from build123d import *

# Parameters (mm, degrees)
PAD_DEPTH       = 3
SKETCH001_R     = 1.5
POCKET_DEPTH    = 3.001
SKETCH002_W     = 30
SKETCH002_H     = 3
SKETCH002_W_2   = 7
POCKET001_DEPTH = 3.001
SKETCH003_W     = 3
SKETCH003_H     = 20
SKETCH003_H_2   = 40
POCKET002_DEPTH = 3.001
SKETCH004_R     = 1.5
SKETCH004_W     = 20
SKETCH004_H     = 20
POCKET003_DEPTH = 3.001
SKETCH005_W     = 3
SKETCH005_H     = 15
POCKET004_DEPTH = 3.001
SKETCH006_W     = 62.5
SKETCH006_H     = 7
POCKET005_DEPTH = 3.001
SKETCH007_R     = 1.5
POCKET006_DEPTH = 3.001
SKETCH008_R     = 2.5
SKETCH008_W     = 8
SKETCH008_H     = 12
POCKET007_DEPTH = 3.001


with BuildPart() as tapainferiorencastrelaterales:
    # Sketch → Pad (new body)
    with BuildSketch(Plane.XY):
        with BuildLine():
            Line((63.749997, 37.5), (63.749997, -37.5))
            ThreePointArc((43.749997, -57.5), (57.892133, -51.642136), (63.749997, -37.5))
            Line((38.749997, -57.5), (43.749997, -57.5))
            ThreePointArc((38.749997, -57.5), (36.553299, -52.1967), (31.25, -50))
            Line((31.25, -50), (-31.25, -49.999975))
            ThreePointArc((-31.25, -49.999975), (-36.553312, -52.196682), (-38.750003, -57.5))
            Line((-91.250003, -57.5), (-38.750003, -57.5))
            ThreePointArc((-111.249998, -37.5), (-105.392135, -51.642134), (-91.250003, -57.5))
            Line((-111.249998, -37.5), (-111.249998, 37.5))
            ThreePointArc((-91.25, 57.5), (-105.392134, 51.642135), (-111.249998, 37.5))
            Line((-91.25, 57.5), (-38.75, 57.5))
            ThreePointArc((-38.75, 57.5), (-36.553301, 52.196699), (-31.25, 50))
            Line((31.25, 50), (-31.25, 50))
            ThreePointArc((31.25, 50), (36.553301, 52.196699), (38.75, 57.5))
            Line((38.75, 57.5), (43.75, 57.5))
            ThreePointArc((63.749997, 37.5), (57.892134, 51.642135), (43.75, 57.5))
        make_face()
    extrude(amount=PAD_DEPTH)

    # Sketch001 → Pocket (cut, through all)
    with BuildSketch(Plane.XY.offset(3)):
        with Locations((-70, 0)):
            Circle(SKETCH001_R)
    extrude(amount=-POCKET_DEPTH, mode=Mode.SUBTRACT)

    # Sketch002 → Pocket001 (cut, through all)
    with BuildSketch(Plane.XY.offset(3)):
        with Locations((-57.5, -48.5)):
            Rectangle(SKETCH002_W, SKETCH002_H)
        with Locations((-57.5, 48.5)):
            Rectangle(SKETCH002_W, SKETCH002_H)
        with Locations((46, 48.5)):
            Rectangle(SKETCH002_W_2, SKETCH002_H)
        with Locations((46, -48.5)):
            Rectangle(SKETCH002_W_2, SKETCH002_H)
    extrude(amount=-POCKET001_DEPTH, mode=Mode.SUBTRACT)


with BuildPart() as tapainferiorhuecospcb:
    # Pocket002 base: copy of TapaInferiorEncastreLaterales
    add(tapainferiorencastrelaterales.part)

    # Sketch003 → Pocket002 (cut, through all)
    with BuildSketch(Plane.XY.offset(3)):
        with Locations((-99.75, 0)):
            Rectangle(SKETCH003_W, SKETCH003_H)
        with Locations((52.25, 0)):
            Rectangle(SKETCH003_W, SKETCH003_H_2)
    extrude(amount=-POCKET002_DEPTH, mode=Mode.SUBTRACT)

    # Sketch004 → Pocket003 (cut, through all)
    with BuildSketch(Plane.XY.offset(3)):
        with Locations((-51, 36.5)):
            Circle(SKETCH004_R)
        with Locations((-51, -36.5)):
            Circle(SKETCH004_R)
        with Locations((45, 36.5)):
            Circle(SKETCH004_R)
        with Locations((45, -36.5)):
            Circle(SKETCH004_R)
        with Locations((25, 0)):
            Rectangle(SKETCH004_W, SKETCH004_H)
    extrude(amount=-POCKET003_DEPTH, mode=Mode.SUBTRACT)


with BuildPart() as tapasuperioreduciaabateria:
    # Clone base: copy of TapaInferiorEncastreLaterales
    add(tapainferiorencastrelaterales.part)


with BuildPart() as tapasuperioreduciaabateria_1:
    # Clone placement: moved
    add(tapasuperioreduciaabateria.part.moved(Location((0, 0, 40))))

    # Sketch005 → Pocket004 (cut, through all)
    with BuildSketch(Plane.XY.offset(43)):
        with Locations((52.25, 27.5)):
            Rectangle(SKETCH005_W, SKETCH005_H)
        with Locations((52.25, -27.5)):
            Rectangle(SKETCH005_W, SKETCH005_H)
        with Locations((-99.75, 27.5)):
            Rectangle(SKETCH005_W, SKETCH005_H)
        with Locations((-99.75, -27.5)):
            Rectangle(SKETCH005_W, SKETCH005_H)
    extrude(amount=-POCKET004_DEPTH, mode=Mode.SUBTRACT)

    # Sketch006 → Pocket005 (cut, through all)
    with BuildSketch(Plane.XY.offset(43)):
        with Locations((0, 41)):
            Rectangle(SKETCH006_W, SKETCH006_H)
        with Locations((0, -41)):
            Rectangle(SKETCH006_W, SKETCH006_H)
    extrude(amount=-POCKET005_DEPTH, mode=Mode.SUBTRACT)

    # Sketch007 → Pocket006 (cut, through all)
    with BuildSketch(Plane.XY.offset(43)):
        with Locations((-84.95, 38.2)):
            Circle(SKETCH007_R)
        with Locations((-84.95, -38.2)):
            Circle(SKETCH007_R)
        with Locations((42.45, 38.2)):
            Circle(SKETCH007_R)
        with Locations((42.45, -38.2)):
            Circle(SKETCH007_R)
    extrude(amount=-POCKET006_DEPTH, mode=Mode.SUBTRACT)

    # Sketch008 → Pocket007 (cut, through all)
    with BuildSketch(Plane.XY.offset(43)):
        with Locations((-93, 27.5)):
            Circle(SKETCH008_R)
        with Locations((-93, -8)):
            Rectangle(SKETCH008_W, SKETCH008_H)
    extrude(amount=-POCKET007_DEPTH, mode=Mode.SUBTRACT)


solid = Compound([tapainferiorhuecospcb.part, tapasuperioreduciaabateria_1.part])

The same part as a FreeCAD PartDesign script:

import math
import FreeCAD as App
import Part
import Sketcher

V = App.Vector
Q = App.Units.Quantity

doc = App.newDocument("Part")
body = doc.addObject("PartDesign::Body", "Body")

# Sketch on XY plane
sketch1 = doc.addObject("Sketcher::SketchObject", "Sketch")
body.addObject(sketch1)
sketch1.AttachmentSupport = (doc.XY_Plane, [""])
sketch1.MapMode = "FlatFace"
sketch1.addGeometry(Part.LineSegment(V(63.749997, -37.5, 0), V(63.749997, 37.5, 0)), False)
sketch1.addGeometry(Part.ArcOfCircle(Part.Circle(V(43.749998, 37.500001, 0), V(0, 0, 1), 19.999999), math.radians(-0.000004), math.radians(89.999995)), False)
sketch1.addGeometry(Part.LineSegment(V(43.75, 57.5, 0), V(38.75, 57.5, 0)), False)
sketch1.addGeometry(Part.ArcOfCircle(Part.Circle(V(31.25, 57.5, 0), V(0, 0, 1), 7.5), math.radians(-90.000004), math.radians(0.000004)), False)
sketch1.addGeometry(Part.LineSegment(V(31.25, 50, 0), V(-31.25, 50, 0)), False)
sketch1.addGeometry(Part.ArcOfCircle(Part.Circle(V(-31.25, 57.5, 0), V(0, 0, 1), 7.5), math.radians(179.999996), math.radians(270.000004)), False)
sketch1.addGeometry(Part.LineSegment(V(-38.75, 57.5, 0), V(-91.25, 57.5, 0)), False)
sketch1.addGeometry(Part.ArcOfCircle(Part.Circle(V(-91.249998, 37.5, 0), V(0, 0, 1), 20), math.radians(90.000007), math.radians(179.999999)), False)
sketch1.addGeometry(Part.LineSegment(V(-111.249998, 37.5, 0), V(-111.249998, -37.5, 0)), False)
sketch1.addGeometry(Part.ArcOfCircle(Part.Circle(V(-91.249998, -37.5, 0), V(0, 0, 1), 20), math.radians(-179.999999), math.radians(-90.000016)), False)
sketch1.addGeometry(Part.LineSegment(V(-91.250003, -57.5, 0), V(-38.750003, -57.5, 0)), False)
sketch1.addGeometry(Part.ArcOfCircle(Part.Circle(V(-31.250003, -57.499975, 0), V(0, 0, 1), 7.5), math.radians(89.999973), math.radians(180.000195)), False)
sketch1.addGeometry(Part.LineSegment(V(-31.25, -49.999975, 0), V(31.25, -50, 0)), False)
sketch1.addGeometry(Part.ArcOfCircle(Part.Circle(V(31.249997, -57.5, 0), V(0, 0, 1), 7.5), math.radians(-0.000004), math.radians(89.999981)), False)
sketch1.addGeometry(Part.LineSegment(V(38.749997, -57.5, 0), V(43.749997, -57.5, 0)), False)
sketch1.addGeometry(Part.ArcOfCircle(Part.Circle(V(43.749998, -37.500001, 0), V(0, 0, 1), 19.999999), math.radians(-90.000004), math.radians(0.000004)), False)
sketch1.addConstraint(Sketcher.Constraint("Coincident", 0, 2, 1, 1))
sketch1.addConstraint(Sketcher.Constraint("Coincident", 1, 2, 2, 1))
sketch1.addConstraint(Sketcher.Constraint("Coincident", 2, 2, 3, 2))
sketch1.addConstraint(Sketcher.Constraint("Coincident", 3, 1, 4, 1))
sketch1.addConstraint(Sketcher.Constraint("Coincident", 4, 2, 5, 2))
sketch1.addConstraint(Sketcher.Constraint("Coincident", 5, 1, 6, 1))
sketch1.addConstraint(Sketcher.Constraint("Coincident", 6, 2, 7, 1))
sketch1.addConstraint(Sketcher.Constraint("Coincident", 7, 2, 8, 1))
sketch1.addConstraint(Sketcher.Constraint("Coincident", 8, 2, 9, 1))
sketch1.addConstraint(Sketcher.Constraint("Coincident", 9, 2, 10, 1))
sketch1.addConstraint(Sketcher.Constraint("Coincident", 10, 2, 11, 2))
sketch1.addConstraint(Sketcher.Constraint("Coincident", 11, 1, 12, 1))
sketch1.addConstraint(Sketcher.Constraint("Coincident", 12, 2, 13, 2))
sketch1.addConstraint(Sketcher.Constraint("Coincident", 13, 1, 14, 1))
sketch1.addConstraint(Sketcher.Constraint("Coincident", 14, 2, 15, 1))
sketch1.addConstraint(Sketcher.Constraint("Coincident", 15, 2, 0, 1))
sketch1.addConstraint(Sketcher.Constraint("Vertical", 0))
sketch1.addConstraint(Sketcher.Constraint("Horizontal", 2))
sketch1.addConstraint(Sketcher.Constraint("Horizontal", 4))
sketch1.addConstraint(Sketcher.Constraint("Horizontal", 6))
sketch1.addConstraint(Sketcher.Constraint("Vertical", 8))
sketch1.addConstraint(Sketcher.Constraint("Horizontal", 10))
sketch1.addConstraint(Sketcher.Constraint("Horizontal", 14))
sketch1.addConstraint(Sketcher.Constraint("Radius", 1, Q("19.999999 mm")))
sketch1.addConstraint(Sketcher.Constraint("Radius", 7, Q("20 mm")))
sketch1.addConstraint(Sketcher.Constraint("Radius", 9, Q("20 mm")))
sketch1.addConstraint(Sketcher.Constraint("Radius", 15, Q("19.999999 mm")))
sketch1.addConstraint(Sketcher.Constraint("Radius", 3, Q("7.5 mm")))
sketch1.addConstraint(Sketcher.Constraint("Radius", 5, Q("7.5 mm")))
sketch1.addConstraint(Sketcher.Constraint("Radius", 11, Q("7.5 mm")))
sketch1.addConstraint(Sketcher.Constraint("Radius", 13, Q("7.5 mm")))
sketch1.addConstraint(Sketcher.Constraint("DistanceX", 2, 2, 2, 1, Q("5 mm")))
sketch1.addConstraint(Sketcher.Constraint("DistanceX", 14, 1, 14, 2, Q("5 mm")))
sketch1.addConstraint(Sketcher.Constraint("DistanceY", 0, 1, 0, 2, Q("75 mm")))
sketch1.addConstraint(Sketcher.Constraint("DistanceY", 8, 2, 8, 1, Q("75 mm")))
sketch1.addConstraint(Sketcher.Constraint("DistanceX", 4, 2, 4, 1, Q("62.5 mm")))
sketch1.addConstraint(Sketcher.Constraint("DistanceX", 6, 2, 6, 1, Q("52.5 mm")))
sketch1.addConstraint(Sketcher.Constraint("DistanceX", 10, 1, 10, 2, Q("52.5 mm")))
sketch1.addConstraint(Sketcher.Constraint("DistanceY", -1, 1, 3, 1, Q("50 mm")))
sketch1.addConstraint(Sketcher.Constraint("DistanceY", 12, 2, -1, 1, Q("50 mm")))
sketch1.addConstraint(Sketcher.Constraint("DistanceY", 1, 3, 3, 3, Q("19.999998 mm")))
sketch1.addConstraint(Sketcher.Constraint("DistanceX", 5, 3, 1, 3, Q("74.999999 mm")))
sketch1.addConstraint(Sketcher.Constraint("DistanceY", 7, 3, 5, 3, Q("20 mm")))
sketch1.addConstraint(Sketcher.Constraint("DistanceY", 9, 3, 7, 3, Q("74.999999 mm")))
sketch1.addConstraint(Sketcher.Constraint("DistanceX", 11, 3, 1, 3, Q("75.000002 mm")))
sketch1.addConstraint(Sketcher.Constraint("DistanceY", 13, 3, 15, 3, Q("19.999998 mm")))
sketch1.addConstraint(Sketcher.Constraint("DistanceY", 0, 2, 3, 3, Q("20 mm")))
sketch1.addConstraint(Sketcher.Constraint("DistanceX", 5, 3, 1, 2, Q("75 mm")))
sketch1.addConstraint(Sketcher.Constraint("DistanceX", 4, 2, 2, 2, Q("70 mm")))
sketch1.addConstraint(Sketcher.Constraint("DistanceX", 7, 2, 6, 2, Q("19.999998 mm")))
sketch1.addConstraint(Sketcher.Constraint("DistanceY", 7, 2, 6, 2, Q("20 mm")))
sketch1.addConstraint(Sketcher.Constraint("DistanceX", 10, 2, 13, 3, Q("70 mm")))
sketch1.addConstraint(Sketcher.Constraint("Distance", 12, Q("62.5 mm")))
sketch1.addConstraint(Sketcher.Constraint("DistanceX", 12, 2, 15, 3, Q("12.499998 mm")))
sketch1.addConstraint(Sketcher.Constraint("DistanceX", -1, 1, 1, 3, Q("43.749998 mm")))
sketch1.addConstraint(Sketcher.Constraint("DistanceY", 11, 3, -1, 1, Q("57.499975 mm")))
pad1 = doc.addObject("PartDesign::Pad", "Pad")
body.addObject(pad1)
pad1.Profile = sketch1
pad1.Length = 3

# Sketch on XY plane
sketch2 = doc.addObject("Sketcher::SketchObject", "Sketch001")
body.addObject(sketch2)
sketch2.AttachmentSupport = (doc.XY_Plane, [""])
sketch2.MapMode = "FlatFace"
sketch2.AttachmentOffset = App.Placement(V(0, 0, 3), App.Rotation())
sketch2.addGeometry(Part.Circle(V(-70, 0, 0), V(0, 0, 1), 1.5), False)
sketch2.addConstraint(Sketcher.Constraint("PointOnObject", 0, 3, -1))
sketch2.addConstraint(Sketcher.Constraint("Diameter", 0, Q("3 mm")))
sketch2.addConstraint(Sketcher.Constraint("DistanceX", 0, 3, -1, 1, Q("70 mm")))
pocket1 = doc.addObject("PartDesign::Pocket", "Pocket")
body.addObject(pocket1)
pocket1.Profile = sketch2
pocket1.Type = "ThroughAll"

# Sketch on XY plane
sketch3 = doc.addObject("Sketcher::SketchObject", "Sketch002")
body.addObject(sketch3)
sketch3.AttachmentSupport = (doc.XY_Plane, [""])
sketch3.MapMode = "FlatFace"
sketch3.AttachmentOffset = App.Placement(V(0, 0, 3), App.Rotation())
sketch3.addGeometry(Part.LineSegment(V(-72.5, -47, 0), V(-72.5, -50, 0)), False)
sketch3.addGeometry(Part.LineSegment(V(-72.5, -50, 0), V(-42.5, -50, 0)), False)
sketch3.addGeometry(Part.LineSegment(V(-42.5, -50, 0), V(-42.5, -47, 0)), False)
sketch3.addGeometry(Part.LineSegment(V(-42.5, -47, 0), V(-72.5, -47, 0)), False)
sketch3.addGeometry(Part.LineSegment(V(-72.5, 50, 0), V(-72.5, 47, 0)), False)
sketch3.addGeometry(Part.LineSegment(V(-72.5, 47, 0), V(-42.5, 47, 0)), False)
sketch3.addGeometry(Part.LineSegment(V(-42.5, 47, 0), V(-42.5, 50, 0)), False)
sketch3.addGeometry(Part.LineSegment(V(-42.5, 50, 0), V(-72.5, 50, 0)), False)
sketch3.addGeometry(Part.LineSegment(V(42.5, 50, 0), V(42.5, 47, 0)), False)
sketch3.addGeometry(Part.LineSegment(V(42.5, 47, 0), V(49.5, 47, 0)), False)
sketch3.addGeometry(Part.LineSegment(V(49.5, 47, 0), V(49.5, 50, 0)), False)
sketch3.addGeometry(Part.LineSegment(V(49.5, 50, 0), V(42.5, 50, 0)), False)
sketch3.addGeometry(Part.LineSegment(V(42.5, -47, 0), V(42.5, -50, 0)), False)
sketch3.addGeometry(Part.LineSegment(V(42.5, -50, 0), V(49.5, -50, 0)), False)
sketch3.addGeometry(Part.LineSegment(V(49.5, -50, 0), V(49.5, -47, 0)), False)
sketch3.addGeometry(Part.LineSegment(V(49.5, -47, 0), V(42.5, -47, 0)), False)
sketch3.addConstraint(Sketcher.Constraint("Coincident", 0, 2, 1, 1))
sketch3.addConstraint(Sketcher.Constraint("Coincident", 1, 2, 2, 1))
sketch3.addConstraint(Sketcher.Constraint("Coincident", 2, 2, 3, 1))
sketch3.addConstraint(Sketcher.Constraint("Coincident", 3, 2, 0, 1))
sketch3.addConstraint(Sketcher.Constraint("Coincident", 4, 2, 5, 1))
sketch3.addConstraint(Sketcher.Constraint("Coincident", 5, 2, 6, 1))
sketch3.addConstraint(Sketcher.Constraint("Coincident", 6, 2, 7, 1))
sketch3.addConstraint(Sketcher.Constraint("Coincident", 7, 2, 4, 1))
sketch3.addConstraint(Sketcher.Constraint("Coincident", 8, 2, 9, 1))
sketch3.addConstraint(Sketcher.Constraint("Coincident", 9, 2, 10, 1))
sketch3.addConstraint(Sketcher.Constraint("Coincident", 10, 2, 11, 1))
sketch3.addConstraint(Sketcher.Constraint("Coincident", 11, 2, 8, 1))
sketch3.addConstraint(Sketcher.Constraint("Coincident", 12, 2, 13, 1))
sketch3.addConstraint(Sketcher.Constraint("Coincident", 13, 2, 14, 1))
sketch3.addConstraint(Sketcher.Constraint("Coincident", 14, 2, 15, 1))
sketch3.addConstraint(Sketcher.Constraint("Coincident", 15, 2, 12, 1))
sketch3.addConstraint(Sketcher.Constraint("Vertical", 0))
sketch3.addConstraint(Sketcher.Constraint("Horizontal", 1))
sketch3.addConstraint(Sketcher.Constraint("Vertical", 2))
sketch3.addConstraint(Sketcher.Constraint("Horizontal", 3))
sketch3.addConstraint(Sketcher.Constraint("Vertical", 4))
sketch3.addConstraint(Sketcher.Constraint("Horizontal", 5))
sketch3.addConstraint(Sketcher.Constraint("Vertical", 6))
sketch3.addConstraint(Sketcher.Constraint("Horizontal", 7))
sketch3.addConstraint(Sketcher.Constraint("Vertical", 8))
sketch3.addConstraint(Sketcher.Constraint("Horizontal", 9))
sketch3.addConstraint(Sketcher.Constraint("Vertical", 10))
sketch3.addConstraint(Sketcher.Constraint("Horizontal", 11))
sketch3.addConstraint(Sketcher.Constraint("Vertical", 12))
sketch3.addConstraint(Sketcher.Constraint("Horizontal", 13))
sketch3.addConstraint(Sketcher.Constraint("Vertical", 14))
sketch3.addConstraint(Sketcher.Constraint("Horizontal", 15))
sketch3.addConstraint(Sketcher.Constraint("Symmetric", 2, 2, 8, 2, -1, 1))
sketch3.addConstraint(Sketcher.Constraint("Symmetric", 6, 2, 12, 2, -1, 1))
sketch3.addConstraint(Sketcher.Constraint("Symmetric", 5, 2, 8, 2, -2))
sketch3.addConstraint(Sketcher.Constraint("Symmetric", 0, 2, 7, 2, -1))
sketch3.addConstraint(Sketcher.Constraint("Symmetric", 10, 2, 13, 2, -1))
sketch3.addConstraint(Sketcher.Constraint("Horizontal", 3, 2, 14, 2))
sketch3.addConstraint(Sketcher.Constraint("DistanceX", 1, 1, 1, 2, Q("30 mm")))
sketch3.addConstraint(Sketcher.Constraint("DistanceX", 9, 1, 9, 2, Q("7 mm")))
sketch3.addConstraint(Sketcher.Constraint("DistanceY", 0, 2, 0, 1, Q("3 mm")))
sketch3.addConstraint(Sketcher.Constraint("DistanceY", 0, 2, -1, 1, Q("50 mm")))
sketch3.addConstraint(Sketcher.Constraint("DistanceX", 5, 2, 8, 2, Q("85 mm")))
pocket2 = doc.addObject("PartDesign::Pocket", "Pocket001")
body.addObject(pocket2)
pocket2.Profile = sketch3
pocket2.Type = "ThroughAll"
body2 = doc.addObject("PartDesign::Body", "Body001")
doc.recompute()

body2.BaseFeature = body
doc.recompute()

# Sketch on XY plane
sketch4 = doc.addObject("Sketcher::SketchObject", "Sketch003")
body2.addObject(sketch4)
sketch4.AttachmentSupport = (doc.getObject("XY_Plane001"), [""])
sketch4.MapMode = "FlatFace"
sketch4.AttachmentOffset = App.Placement(V(0, 0, 3), App.Rotation())
sketch4.addGeometry(Part.LineSegment(V(-101.2, 10, 0), V(-101.2, -10, 0)), False)
sketch4.addGeometry(Part.LineSegment(V(-101.2, -10, 0), V(-98.2, -10, 0)), False)
sketch4.addGeometry(Part.LineSegment(V(-98.2, -10, 0), V(-98.2, 10, 0)), False)
sketch4.addGeometry(Part.LineSegment(V(-98.2, 10, 0), V(-101.2, 10, 0)), False)
sketch4.addGeometry(Part.LineSegment(V(50.8, 20, 0), V(50.8, -20, 0)), False)
sketch4.addGeometry(Part.LineSegment(V(50.8, -20, 0), V(53.8, -20, 0)), False)
sketch4.addGeometry(Part.LineSegment(V(53.8, -20, 0), V(53.8, 20, 0)), False)
sketch4.addGeometry(Part.LineSegment(V(53.8, 20, 0), V(50.8, 20, 0)), False)
sketch4.addConstraint(Sketcher.Constraint("Coincident", 0, 2, 1, 1))
sketch4.addConstraint(Sketcher.Constraint("Coincident", 1, 2, 2, 1))
sketch4.addConstraint(Sketcher.Constraint("Coincident", 2, 2, 3, 1))
sketch4.addConstraint(Sketcher.Constraint("Coincident", 3, 2, 0, 1))
sketch4.addConstraint(Sketcher.Constraint("Coincident", 4, 2, 5, 1))
sketch4.addConstraint(Sketcher.Constraint("Coincident", 5, 2, 6, 1))
sketch4.addConstraint(Sketcher.Constraint("Coincident", 6, 2, 7, 1))
sketch4.addConstraint(Sketcher.Constraint("Coincident", 7, 2, 4, 1))
sketch4.addConstraint(Sketcher.Constraint("Vertical", 0))
sketch4.addConstraint(Sketcher.Constraint("Horizontal", 1))
sketch4.addConstraint(Sketcher.Constraint("Vertical", 2))
sketch4.addConstraint(Sketcher.Constraint("Horizontal", 3))
sketch4.addConstraint(Sketcher.Constraint("Vertical", 4))
sketch4.addConstraint(Sketcher.Constraint("Horizontal", 5))
sketch4.addConstraint(Sketcher.Constraint("Vertical", 6))
sketch4.addConstraint(Sketcher.Constraint("Horizontal", 7))
sketch4.addConstraint(Sketcher.Constraint("Equal", 3, 5))
sketch4.addConstraint(Sketcher.Constraint("DistanceX", 1, 1, 1, 2, Q("3 mm")))
sketch4.addConstraint(Sketcher.Constraint("DistanceY", 0, 2, 0, 1, Q("20 mm")))
sketch4.addConstraint(Sketcher.Constraint("DistanceY", 4, 2, 4, 1, Q("40 mm")))
sketch4.addConstraint(Sketcher.Constraint("DistanceY", 0, 2, -1, 1, Q("10 mm")))
sketch4.addConstraint(Sketcher.Constraint("DistanceY", 4, 2, -1, 1, Q("20 mm")))
sketch4.addConstraint(Sketcher.Constraint("DistanceX", 1, 2, 4, 2, Q("149 mm")))
sketch4.addConstraint(Sketcher.Constraint("DistanceX", 0, 2, -1, 1, Q("101.25 mm")))
pocket3 = doc.addObject("PartDesign::Pocket", "Pocket002")
body2.addObject(pocket3)
pocket3.Profile = sketch4
pocket3.Type = "ThroughAll"

# Sketch on XY plane
sketch5 = doc.addObject("Sketcher::SketchObject", "Sketch004")
body2.addObject(sketch5)
sketch5.AttachmentSupport = (doc.getObject("XY_Plane001"), [""])
sketch5.MapMode = "FlatFace"
sketch5.AttachmentOffset = App.Placement(V(0, 0, 3), App.Rotation())
sketch5.addGeometry(Part.Circle(V(-51, 36.5, 0), V(0, 0, 1), 1.5), False)
sketch5.addGeometry(Part.Circle(V(-51, -36.5, 0), V(0, 0, 1), 1.5), False)
sketch5.addGeometry(Part.Circle(V(45, 36.5, 0), V(0, 0, 1), 1.5), False)
sketch5.addGeometry(Part.Circle(V(45, -36.5, 0), V(0, 0, 1), 1.5), False)
sketch5.addGeometry(Part.LineSegment(V(15, 10, 0), V(15, -10, 0)), False)
sketch5.addGeometry(Part.LineSegment(V(15, -10, 0), V(35, -10, 0)), False)
sketch5.addGeometry(Part.LineSegment(V(35, -10, 0), V(35, 10, 0)), False)
sketch5.addGeometry(Part.LineSegment(V(35, 10, 0), V(15, 10, 0)), False)
sketch5.addConstraint(Sketcher.Constraint("Coincident", 4, 2, 5, 1))
sketch5.addConstraint(Sketcher.Constraint("Coincident", 5, 2, 6, 1))
sketch5.addConstraint(Sketcher.Constraint("Coincident", 6, 2, 7, 1))
sketch5.addConstraint(Sketcher.Constraint("Coincident", 7, 2, 4, 1))
sketch5.addConstraint(Sketcher.Constraint("Vertical", 4))
sketch5.addConstraint(Sketcher.Constraint("Horizontal", 5))
sketch5.addConstraint(Sketcher.Constraint("Vertical", 6))
sketch5.addConstraint(Sketcher.Constraint("Horizontal", 7))
sketch5.addConstraint(Sketcher.Constraint("Equal", 0, 1))
sketch5.addConstraint(Sketcher.Constraint("Equal", 1, 2))
sketch5.addConstraint(Sketcher.Constraint("Equal", 2, 3))
sketch5.addConstraint(Sketcher.Constraint("Symmetric", 0, 3, 1, 3, -1))
sketch5.addConstraint(Sketcher.Constraint("Symmetric", 2, 3, 3, 3, -1))
sketch5.addConstraint(Sketcher.Constraint("Horizontal", 0, 3, 2, 3))
sketch5.addConstraint(Sketcher.Constraint("Equal", 7, 4))
sketch5.addConstraint(Sketcher.Constraint("Diameter", 0, Q("3 mm")))
sketch5.addConstraint(Sketcher.Constraint("DistanceX", 5, 1, 5, 2, Q("20 mm")))
sketch5.addConstraint(Sketcher.Constraint("DistanceX", 0, 3, -1, 1, Q("51 mm")))
sketch5.addConstraint(Sketcher.Constraint("DistanceX", -1, 1, 2, 3, Q("45 mm")))
sketch5.addConstraint(Sketcher.Constraint("DistanceX", -1, 1, 4, 2, Q("15 mm")))
sketch5.addConstraint(Sketcher.Constraint("DistanceY", 4, 2, -1, 1, Q("10 mm")))
sketch5.addConstraint(Sketcher.Constraint("DistanceY", 1, 3, 0, 3, Q("73 mm")))
pocket4 = doc.addObject("PartDesign::Pocket", "Pocket003")
body2.addObject(pocket4)
pocket4.Profile = sketch5
pocket4.Type = "ThroughAll"
body3 = doc.addObject("PartDesign::Body", "Body002")
doc.recompute()

body.Placement = App.Placement(V(0, 0, 40), App.Rotation(V(0, 0, 1), 0))
boolean = doc.addObject("PartDesign::Boolean", "Boolean")
body3.addObject(boolean)
boolean.Type = "Fuse"
boolean.addObjects([body])

# Sketch on XY plane
sketch6 = doc.addObject("Sketcher::SketchObject", "Sketch005")
body3.addObject(sketch6)
sketch6.AttachmentSupport = (doc.getObject("XY_Plane002"), [""])
sketch6.MapMode = "FlatFace"
sketch6.AttachmentOffset = App.Placement(V(0, 0, 43), App.Rotation())
sketch6.addGeometry(Part.LineSegment(V(50.8, 35, 0), V(50.8, 20, 0)), False)
sketch6.addGeometry(Part.LineSegment(V(50.8, 20, 0), V(53.8, 20, 0)), False)
sketch6.addGeometry(Part.LineSegment(V(53.8, 20, 0), V(53.8, 35, 0)), False)
sketch6.addGeometry(Part.LineSegment(V(53.8, 35, 0), V(50.8, 35, 0)), False)
sketch6.addGeometry(Part.LineSegment(V(50.8, -20, 0), V(50.8, -35, 0)), False)
sketch6.addGeometry(Part.LineSegment(V(50.8, -35, 0), V(53.8, -35, 0)), False)
sketch6.addGeometry(Part.LineSegment(V(53.8, -35, 0), V(53.8, -20, 0)), False)
sketch6.addGeometry(Part.LineSegment(V(53.8, -20, 0), V(50.8, -20, 0)), False)
sketch6.addGeometry(Part.LineSegment(V(-101.2, 35, 0), V(-101.2, 20, 0)), False)
sketch6.addGeometry(Part.LineSegment(V(-101.2, 20, 0), V(-98.2, 20, 0)), False)
sketch6.addGeometry(Part.LineSegment(V(-98.2, 20, 0), V(-98.2, 35, 0)), False)
sketch6.addGeometry(Part.LineSegment(V(-98.2, 35, 0), V(-101.2, 35, 0)), False)
sketch6.addGeometry(Part.LineSegment(V(-101.2, -20, 0), V(-101.2, -35, 0)), False)
sketch6.addGeometry(Part.LineSegment(V(-101.2, -35, 0), V(-98.2, -35, 0)), False)
sketch6.addGeometry(Part.LineSegment(V(-98.2, -35, 0), V(-98.2, -20, 0)), False)
sketch6.addGeometry(Part.LineSegment(V(-98.2, -20, 0), V(-101.2, -20, 0)), False)
sketch6.addConstraint(Sketcher.Constraint("Coincident", 0, 2, 1, 1))
sketch6.addConstraint(Sketcher.Constraint("Coincident", 1, 2, 2, 1))
sketch6.addConstraint(Sketcher.Constraint("Coincident", 2, 2, 3, 1))
sketch6.addConstraint(Sketcher.Constraint("Coincident", 3, 2, 0, 1))
sketch6.addConstraint(Sketcher.Constraint("Coincident", 4, 2, 5, 1))
sketch6.addConstraint(Sketcher.Constraint("Coincident", 5, 2, 6, 1))
sketch6.addConstraint(Sketcher.Constraint("Coincident", 6, 2, 7, 1))
sketch6.addConstraint(Sketcher.Constraint("Coincident", 7, 2, 4, 1))
sketch6.addConstraint(Sketcher.Constraint("Coincident", 8, 2, 9, 1))
sketch6.addConstraint(Sketcher.Constraint("Coincident", 9, 2, 10, 1))
sketch6.addConstraint(Sketcher.Constraint("Coincident", 10, 2, 11, 1))
sketch6.addConstraint(Sketcher.Constraint("Coincident", 11, 2, 8, 1))
sketch6.addConstraint(Sketcher.Constraint("Coincident", 12, 2, 13, 1))
sketch6.addConstraint(Sketcher.Constraint("Coincident", 13, 2, 14, 1))
sketch6.addConstraint(Sketcher.Constraint("Coincident", 14, 2, 15, 1))
sketch6.addConstraint(Sketcher.Constraint("Coincident", 15, 2, 12, 1))
sketch6.addConstraint(Sketcher.Constraint("Vertical", 0))
sketch6.addConstraint(Sketcher.Constraint("Horizontal", 1))
sketch6.addConstraint(Sketcher.Constraint("Vertical", 2))
sketch6.addConstraint(Sketcher.Constraint("Horizontal", 3))
sketch6.addConstraint(Sketcher.Constraint("Vertical", 4))
sketch6.addConstraint(Sketcher.Constraint("Horizontal", 5))
sketch6.addConstraint(Sketcher.Constraint("Vertical", 6))
sketch6.addConstraint(Sketcher.Constraint("Horizontal", 7))
sketch6.addConstraint(Sketcher.Constraint("Vertical", 8))
sketch6.addConstraint(Sketcher.Constraint("Horizontal", 9))
sketch6.addConstraint(Sketcher.Constraint("Vertical", 10))
sketch6.addConstraint(Sketcher.Constraint("Horizontal", 11))
sketch6.addConstraint(Sketcher.Constraint("Vertical", 12))
sketch6.addConstraint(Sketcher.Constraint("Horizontal", 13))
sketch6.addConstraint(Sketcher.Constraint("Vertical", 14))
sketch6.addConstraint(Sketcher.Constraint("Horizontal", 15))
sketch6.addConstraint(Sketcher.Constraint("Symmetric", 3, 2, 4, 2, -1))
sketch6.addConstraint(Sketcher.Constraint("Symmetric", 1, 2, 6, 2, -1))
sketch6.addConstraint(Sketcher.Constraint("Symmetric", 11, 2, 12, 2, -1))
sketch6.addConstraint(Sketcher.Constraint("Symmetric", 9, 2, 14, 2, -1))
sketch6.addConstraint(Sketcher.Constraint("Horizontal", 1, 2, 8, 2))
sketch6.addConstraint(Sketcher.Constraint("Horizontal", 3, 2, 10, 2))
sketch6.addConstraint(Sketcher.Constraint("Equal", 7, 9))
sketch6.addConstraint(Sketcher.Constraint("DistanceX", 1, 1, 1, 2, Q("3 mm")))
sketch6.addConstraint(Sketcher.Constraint("DistanceY", 0, 2, 0, 1, Q("15 mm")))
sketch6.addConstraint(Sketcher.Constraint("DistanceY", -1, 1, 0, 2, Q("20 mm")))
sketch6.addConstraint(Sketcher.Constraint("DistanceX", 8, 2, 0, 2, Q("152 mm")))
sketch6.addConstraint(Sketcher.Constraint("DistanceX", -1, 1, 0, 2, Q("50.75 mm")))
pocket5 = doc.addObject("PartDesign::Pocket", "Pocket004")
body3.addObject(pocket5)
pocket5.Profile = sketch6
pocket5.Type = "ThroughAll"

# Sketch on XY plane
sketch7 = doc.addObject("Sketcher::SketchObject", "Sketch006")
body3.addObject(sketch7)
sketch7.AttachmentSupport = (doc.getObject("XY_Plane002"), [""])
sketch7.MapMode = "FlatFace"
sketch7.AttachmentOffset = App.Placement(V(0, 0, 43), App.Rotation())
sketch7.addGeometry(Part.LineSegment(V(-31, 44, 0), V(-31, 38, 0)), False)
sketch7.addGeometry(Part.LineSegment(V(-31, 38, 0), V(31, 38, 0)), False)
sketch7.addGeometry(Part.LineSegment(V(31, 38, 0), V(31, 44, 0)), False)
sketch7.addGeometry(Part.LineSegment(V(31, 44, 0), V(-31, 44, 0)), False)
sketch7.addGeometry(Part.LineSegment(V(-31, -38, 0), V(-31, -44, 0)), False)
sketch7.addGeometry(Part.LineSegment(V(-31, -44, 0), V(31, -44, 0)), False)
sketch7.addGeometry(Part.LineSegment(V(31, -44, 0), V(31, -38, 0)), False)
sketch7.addGeometry(Part.LineSegment(V(31, -38, 0), V(-31, -38, 0)), False)
sketch7.addConstraint(Sketcher.Constraint("Coincident", 0, 2, 1, 1))
sketch7.addConstraint(Sketcher.Constraint("Coincident", 1, 2, 2, 1))
sketch7.addConstraint(Sketcher.Constraint("Coincident", 2, 2, 3, 1))
sketch7.addConstraint(Sketcher.Constraint("Coincident", 3, 2, 0, 1))
sketch7.addConstraint(Sketcher.Constraint("Coincident", 4, 2, 5, 1))
sketch7.addConstraint(Sketcher.Constraint("Coincident", 5, 2, 6, 1))
sketch7.addConstraint(Sketcher.Constraint("Coincident", 6, 2, 7, 1))
sketch7.addConstraint(Sketcher.Constraint("Coincident", 7, 2, 4, 1))
sketch7.addConstraint(Sketcher.Constraint("Vertical", 0))
sketch7.addConstraint(Sketcher.Constraint("Horizontal", 1))
sketch7.addConstraint(Sketcher.Constraint("Vertical", 2))
sketch7.addConstraint(Sketcher.Constraint("Horizontal", 3))
sketch7.addConstraint(Sketcher.Constraint("Vertical", 4))
sketch7.addConstraint(Sketcher.Constraint("Horizontal", 5))
sketch7.addConstraint(Sketcher.Constraint("Vertical", 6))
sketch7.addConstraint(Sketcher.Constraint("Horizontal", 7))
sketch7.addConstraint(Sketcher.Constraint("Symmetric", 2, 2, 4, 2, -1, 1))
sketch7.addConstraint(Sketcher.Constraint("Symmetric", 0, 2, 6, 2, -1, 1))
sketch7.addConstraint(Sketcher.Constraint("Vertical", 3, 2, 4, 2))
sketch7.addConstraint(Sketcher.Constraint("DistanceY", 0, 2, 0, 1, Q("7 mm")))
sketch7.addConstraint(Sketcher.Constraint("DistanceX", 1, 1, 1, 2, Q("62.5 mm")))
sketch7.addConstraint(Sketcher.Constraint("DistanceY", 4, 2, 0, 2, Q("82 mm")))
pocket6 = doc.addObject("PartDesign::Pocket", "Pocket005")
body3.addObject(pocket6)
pocket6.Profile = sketch7
pocket6.Type = "ThroughAll"

# Sketch on XY plane
sketch8 = doc.addObject("Sketcher::SketchObject", "Sketch007")
body3.addObject(sketch8)
sketch8.AttachmentSupport = (doc.getObject("XY_Plane002"), [""])
sketch8.MapMode = "FlatFace"
sketch8.AttachmentOffset = App.Placement(V(0, 0, 43), App.Rotation())
sketch8.addGeometry(Part.Circle(V(-85, 38.2, 0), V(0, 0, 1), 1.5), False)
sketch8.addGeometry(Part.Circle(V(-85, -38.2, 0), V(0, 0, 1), 1.5), False)
sketch8.addGeometry(Part.Circle(V(42.5, 38.2, 0), V(0, 0, 1), 1.5), False)
sketch8.addGeometry(Part.Circle(V(42.5, -38.2, 0), V(0, 0, 1), 1.5), False)
sketch8.addConstraint(Sketcher.Constraint("Equal", 0, 1))
sketch8.addConstraint(Sketcher.Constraint("Equal", 1, 2))
sketch8.addConstraint(Sketcher.Constraint("Equal", 2, 3))
sketch8.addConstraint(Sketcher.Constraint("Symmetric", 0, 3, 1, 3, -1))
sketch8.addConstraint(Sketcher.Constraint("Symmetric", 2, 3, 3, 3, -1))
sketch8.addConstraint(Sketcher.Constraint("Horizontal", 0, 3, 2, 3))
sketch8.addConstraint(Sketcher.Constraint("Diameter", 0, Q("3 mm")))
sketch8.addConstraint(Sketcher.Constraint("DistanceY", -1, 1, 0, 3, Q("38.2 mm")))
sketch8.addConstraint(Sketcher.Constraint("DistanceX", 0, 3, 2, 3, Q("127.4 mm")))
sketch8.addConstraint(Sketcher.Constraint("DistanceX", 0, 3, -1, 1, Q("84.95 mm")))
pocket7 = doc.addObject("PartDesign::Pocket", "Pocket006")
body3.addObject(pocket7)
pocket7.Profile = sketch8
pocket7.Type = "ThroughAll"

# Sketch on XY plane
sketch9 = doc.addObject("Sketcher::SketchObject", "Sketch008")
body3.addObject(sketch9)
sketch9.AttachmentSupport = (doc.getObject("XY_Plane002"), [""])
sketch9.MapMode = "FlatFace"
sketch9.AttachmentOffset = App.Placement(V(0, 0, 43), App.Rotation())
sketch9.addGeometry(Part.Circle(V(-93, 27.5, 0), V(0, 0, 1), 2.5), False)
sketch9.addGeometry(Part.LineSegment(V(-97, -2, 0), V(-97, -14, 0)), False)
sketch9.addGeometry(Part.LineSegment(V(-97, -14, 0), V(-89, -14, 0)), False)
sketch9.addGeometry(Part.LineSegment(V(-89, -14, 0), V(-89, -2, 0)), False)
sketch9.addGeometry(Part.LineSegment(V(-89, -2, 0), V(-97, -2, 0)), False)
sketch9.addConstraint(Sketcher.Constraint("Coincident", 1, 2, 2, 1))
sketch9.addConstraint(Sketcher.Constraint("Coincident", 2, 2, 3, 1))
sketch9.addConstraint(Sketcher.Constraint("Coincident", 3, 2, 4, 1))
sketch9.addConstraint(Sketcher.Constraint("Coincident", 4, 2, 1, 1))
sketch9.addConstraint(Sketcher.Constraint("Vertical", 1))
sketch9.addConstraint(Sketcher.Constraint("Horizontal", 2))
sketch9.addConstraint(Sketcher.Constraint("Vertical", 3))
sketch9.addConstraint(Sketcher.Constraint("Horizontal", 4))
sketch9.addConstraint(Sketcher.Constraint("Diameter", 0, Q("5 mm")))
sketch9.addConstraint(Sketcher.Constraint("DistanceX", 2, 1, 2, 2, Q("8 mm")))
sketch9.addConstraint(Sketcher.Constraint("DistanceY", 1, 2, 1, 1, Q("12 mm")))
sketch9.addConstraint(Sketcher.Constraint("DistanceX", 0, 3, -1, 1, Q("93 mm")))
sketch9.addConstraint(Sketcher.Constraint("DistanceX", 1, 2, -1, 1, Q("97 mm")))
sketch9.addConstraint(Sketcher.Constraint("DistanceY", 1, 2, -1, 1, Q("14 mm")))
sketch9.addConstraint(Sketcher.Constraint("DistanceY", -1, 1, 0, 3, Q("27.5 mm")))
pocket8 = doc.addObject("PartDesign::Pocket", "Pocket007")
body3.addObject(pocket8)
pocket8.Profile = sketch9
pocket8.Type = "ThroughAll"

doc.recompute()
